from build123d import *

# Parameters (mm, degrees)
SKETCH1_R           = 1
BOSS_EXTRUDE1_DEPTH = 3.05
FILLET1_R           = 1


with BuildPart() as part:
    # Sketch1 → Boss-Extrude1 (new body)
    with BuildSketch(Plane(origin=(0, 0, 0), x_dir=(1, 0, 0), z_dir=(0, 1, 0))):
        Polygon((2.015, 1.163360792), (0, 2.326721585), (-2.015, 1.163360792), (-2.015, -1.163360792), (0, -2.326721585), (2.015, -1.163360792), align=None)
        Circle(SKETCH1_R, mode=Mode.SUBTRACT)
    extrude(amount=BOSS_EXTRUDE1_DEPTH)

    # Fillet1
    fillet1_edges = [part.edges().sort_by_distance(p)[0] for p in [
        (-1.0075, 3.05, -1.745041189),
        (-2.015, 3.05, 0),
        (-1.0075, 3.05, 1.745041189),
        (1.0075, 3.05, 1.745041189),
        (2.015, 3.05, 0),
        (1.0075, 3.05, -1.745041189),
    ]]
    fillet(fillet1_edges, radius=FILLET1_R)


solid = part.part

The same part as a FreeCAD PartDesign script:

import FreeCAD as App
import Part
import Sketcher
from FreeCAD import Vector
Q = App.Units.Quantity


def edges_at(feature, points):
    """Names of the edges that pass closest to the given points."""
    edges = feature.Shape.Edges
    near = lambda p: min(range(len(edges)), key=lambda i: edges[i].distToShape(Part.Vertex(*p))[0])
    return sorted({f"Edge{near(p) + 1}" for p in points})

doc = App.newDocument("Part")
body = doc.addObject("PartDesign::Body", "Body")

sketch1 = doc.addObject("Sketcher::SketchObject", "Sketch")
body.addObject(sketch1)
sketch1.AttachmentSupport = (doc.XZ_Plane, [""])
sketch1.MapMode = "FlatFace"
sketch1.addGeometry(Part.LineSegment(Vector(2, -1.2, 0), Vector(0, -2.3, 0)), False)
sketch1.addGeometry(Part.LineSegment(Vector(0, -2.3, 0), Vector(-2, -1.2, 0)), False)
sketch1.addGeometry(Part.LineSegment(Vector(-2, -1.2, 0), Vector(-2, 1.2, 0)), False)
sketch1.addGeometry(Part.LineSegment(Vector(-2, 1.2, 0), Vector(0, 2.3, 0)), False)
sketch1.addGeometry(Part.LineSegment(Vector(0, 2.3, 0), Vector(2, 1.2, 0)), False)
sketch1.addGeometry(Part.LineSegment(Vector(2, 1.2, 0), Vector(2, -1.2, 0)), False)
sketch1.addGeometry(Part.Circle(Vector(0, 0, 0), Vector(0, 0, 1), 1), False)
sketch1.addConstraint(Sketcher.Constraint("Coincident", 0, 2, 1, 1))
sketch1.addConstraint(Sketcher.Constraint("Coincident", 1, 2, 2, 1))
sketch1.addConstraint(Sketcher.Constraint("Coincident", 2, 2, 3, 1))
sketch1.addConstraint(Sketcher.Constraint("Coincident", 3, 2, 4, 1))
sketch1.addConstraint(Sketcher.Constraint("Coincident", 4, 2, 5, 1))
sketch1.addConstraint(Sketcher.Constraint("Coincident", 5, 2, 0, 1))
sketch1.addConstraint(Sketcher.Constraint("Vertical", 2))
sketch1.addConstraint(Sketcher.Constraint("Vertical", 5))
sketch1.addConstraint(Sketcher.Constraint("Coincident", 6, 3, -1, 1))
sketch1.addConstraint(Sketcher.Constraint("Symmetric", 0, 2, 3, 2, -1, 1))
sketch1.addConstraint(Sketcher.Constraint("Symmetric", 1, 2, 4, 2, -1, 1))
sketch1.addConstraint(Sketcher.Constraint("PointOnObject", 0, 2, -2))
sketch1.addConstraint(Sketcher.Constraint("Parallel", 0, 3))
sketch1.addConstraint(Sketcher.Constraint("Horizontal", 2, 2, 4, 2))
sketch1.addConstraint(Sketcher.Constraint("Diameter", 6, Q("2 mm")))
sketch1.addConstraint(Sketcher.Constraint("Angle", 0, Q("-150 deg")))
sketch1.addConstraint(Sketcher.Constraint("DistanceX", 2, 2, 4, 2, Q("4.03 mm")))
sketch1.addConstraint(Sketcher.Constraint("DistanceY", 2, 1, 2, 2, Q("2.326722 mm")))
pad1 = doc.addObject("PartDesign::Pad", "Pad")
body.addObject(pad1)
pad1.Profile = sketch1
pad1.Length = 3.05
pad1.Reversed = True
doc.recompute()

fillet = doc.addObject("PartDesign::Fillet", "Fillet")
body.addObject(fillet)
fillet.Base = (pad1, edges_at(pad1, [
    (-1.008, 3.05, -1.745),
    (-2.015, 3.05, 0),
    (-1.008, 3.05, 1.745),
    (1.008, 3.05, 1.745),
    (2.015, 3.05, 0),
    (1.008, 3.05, -1.745),
]))
fillet.Radius = 1

doc.recompute()
